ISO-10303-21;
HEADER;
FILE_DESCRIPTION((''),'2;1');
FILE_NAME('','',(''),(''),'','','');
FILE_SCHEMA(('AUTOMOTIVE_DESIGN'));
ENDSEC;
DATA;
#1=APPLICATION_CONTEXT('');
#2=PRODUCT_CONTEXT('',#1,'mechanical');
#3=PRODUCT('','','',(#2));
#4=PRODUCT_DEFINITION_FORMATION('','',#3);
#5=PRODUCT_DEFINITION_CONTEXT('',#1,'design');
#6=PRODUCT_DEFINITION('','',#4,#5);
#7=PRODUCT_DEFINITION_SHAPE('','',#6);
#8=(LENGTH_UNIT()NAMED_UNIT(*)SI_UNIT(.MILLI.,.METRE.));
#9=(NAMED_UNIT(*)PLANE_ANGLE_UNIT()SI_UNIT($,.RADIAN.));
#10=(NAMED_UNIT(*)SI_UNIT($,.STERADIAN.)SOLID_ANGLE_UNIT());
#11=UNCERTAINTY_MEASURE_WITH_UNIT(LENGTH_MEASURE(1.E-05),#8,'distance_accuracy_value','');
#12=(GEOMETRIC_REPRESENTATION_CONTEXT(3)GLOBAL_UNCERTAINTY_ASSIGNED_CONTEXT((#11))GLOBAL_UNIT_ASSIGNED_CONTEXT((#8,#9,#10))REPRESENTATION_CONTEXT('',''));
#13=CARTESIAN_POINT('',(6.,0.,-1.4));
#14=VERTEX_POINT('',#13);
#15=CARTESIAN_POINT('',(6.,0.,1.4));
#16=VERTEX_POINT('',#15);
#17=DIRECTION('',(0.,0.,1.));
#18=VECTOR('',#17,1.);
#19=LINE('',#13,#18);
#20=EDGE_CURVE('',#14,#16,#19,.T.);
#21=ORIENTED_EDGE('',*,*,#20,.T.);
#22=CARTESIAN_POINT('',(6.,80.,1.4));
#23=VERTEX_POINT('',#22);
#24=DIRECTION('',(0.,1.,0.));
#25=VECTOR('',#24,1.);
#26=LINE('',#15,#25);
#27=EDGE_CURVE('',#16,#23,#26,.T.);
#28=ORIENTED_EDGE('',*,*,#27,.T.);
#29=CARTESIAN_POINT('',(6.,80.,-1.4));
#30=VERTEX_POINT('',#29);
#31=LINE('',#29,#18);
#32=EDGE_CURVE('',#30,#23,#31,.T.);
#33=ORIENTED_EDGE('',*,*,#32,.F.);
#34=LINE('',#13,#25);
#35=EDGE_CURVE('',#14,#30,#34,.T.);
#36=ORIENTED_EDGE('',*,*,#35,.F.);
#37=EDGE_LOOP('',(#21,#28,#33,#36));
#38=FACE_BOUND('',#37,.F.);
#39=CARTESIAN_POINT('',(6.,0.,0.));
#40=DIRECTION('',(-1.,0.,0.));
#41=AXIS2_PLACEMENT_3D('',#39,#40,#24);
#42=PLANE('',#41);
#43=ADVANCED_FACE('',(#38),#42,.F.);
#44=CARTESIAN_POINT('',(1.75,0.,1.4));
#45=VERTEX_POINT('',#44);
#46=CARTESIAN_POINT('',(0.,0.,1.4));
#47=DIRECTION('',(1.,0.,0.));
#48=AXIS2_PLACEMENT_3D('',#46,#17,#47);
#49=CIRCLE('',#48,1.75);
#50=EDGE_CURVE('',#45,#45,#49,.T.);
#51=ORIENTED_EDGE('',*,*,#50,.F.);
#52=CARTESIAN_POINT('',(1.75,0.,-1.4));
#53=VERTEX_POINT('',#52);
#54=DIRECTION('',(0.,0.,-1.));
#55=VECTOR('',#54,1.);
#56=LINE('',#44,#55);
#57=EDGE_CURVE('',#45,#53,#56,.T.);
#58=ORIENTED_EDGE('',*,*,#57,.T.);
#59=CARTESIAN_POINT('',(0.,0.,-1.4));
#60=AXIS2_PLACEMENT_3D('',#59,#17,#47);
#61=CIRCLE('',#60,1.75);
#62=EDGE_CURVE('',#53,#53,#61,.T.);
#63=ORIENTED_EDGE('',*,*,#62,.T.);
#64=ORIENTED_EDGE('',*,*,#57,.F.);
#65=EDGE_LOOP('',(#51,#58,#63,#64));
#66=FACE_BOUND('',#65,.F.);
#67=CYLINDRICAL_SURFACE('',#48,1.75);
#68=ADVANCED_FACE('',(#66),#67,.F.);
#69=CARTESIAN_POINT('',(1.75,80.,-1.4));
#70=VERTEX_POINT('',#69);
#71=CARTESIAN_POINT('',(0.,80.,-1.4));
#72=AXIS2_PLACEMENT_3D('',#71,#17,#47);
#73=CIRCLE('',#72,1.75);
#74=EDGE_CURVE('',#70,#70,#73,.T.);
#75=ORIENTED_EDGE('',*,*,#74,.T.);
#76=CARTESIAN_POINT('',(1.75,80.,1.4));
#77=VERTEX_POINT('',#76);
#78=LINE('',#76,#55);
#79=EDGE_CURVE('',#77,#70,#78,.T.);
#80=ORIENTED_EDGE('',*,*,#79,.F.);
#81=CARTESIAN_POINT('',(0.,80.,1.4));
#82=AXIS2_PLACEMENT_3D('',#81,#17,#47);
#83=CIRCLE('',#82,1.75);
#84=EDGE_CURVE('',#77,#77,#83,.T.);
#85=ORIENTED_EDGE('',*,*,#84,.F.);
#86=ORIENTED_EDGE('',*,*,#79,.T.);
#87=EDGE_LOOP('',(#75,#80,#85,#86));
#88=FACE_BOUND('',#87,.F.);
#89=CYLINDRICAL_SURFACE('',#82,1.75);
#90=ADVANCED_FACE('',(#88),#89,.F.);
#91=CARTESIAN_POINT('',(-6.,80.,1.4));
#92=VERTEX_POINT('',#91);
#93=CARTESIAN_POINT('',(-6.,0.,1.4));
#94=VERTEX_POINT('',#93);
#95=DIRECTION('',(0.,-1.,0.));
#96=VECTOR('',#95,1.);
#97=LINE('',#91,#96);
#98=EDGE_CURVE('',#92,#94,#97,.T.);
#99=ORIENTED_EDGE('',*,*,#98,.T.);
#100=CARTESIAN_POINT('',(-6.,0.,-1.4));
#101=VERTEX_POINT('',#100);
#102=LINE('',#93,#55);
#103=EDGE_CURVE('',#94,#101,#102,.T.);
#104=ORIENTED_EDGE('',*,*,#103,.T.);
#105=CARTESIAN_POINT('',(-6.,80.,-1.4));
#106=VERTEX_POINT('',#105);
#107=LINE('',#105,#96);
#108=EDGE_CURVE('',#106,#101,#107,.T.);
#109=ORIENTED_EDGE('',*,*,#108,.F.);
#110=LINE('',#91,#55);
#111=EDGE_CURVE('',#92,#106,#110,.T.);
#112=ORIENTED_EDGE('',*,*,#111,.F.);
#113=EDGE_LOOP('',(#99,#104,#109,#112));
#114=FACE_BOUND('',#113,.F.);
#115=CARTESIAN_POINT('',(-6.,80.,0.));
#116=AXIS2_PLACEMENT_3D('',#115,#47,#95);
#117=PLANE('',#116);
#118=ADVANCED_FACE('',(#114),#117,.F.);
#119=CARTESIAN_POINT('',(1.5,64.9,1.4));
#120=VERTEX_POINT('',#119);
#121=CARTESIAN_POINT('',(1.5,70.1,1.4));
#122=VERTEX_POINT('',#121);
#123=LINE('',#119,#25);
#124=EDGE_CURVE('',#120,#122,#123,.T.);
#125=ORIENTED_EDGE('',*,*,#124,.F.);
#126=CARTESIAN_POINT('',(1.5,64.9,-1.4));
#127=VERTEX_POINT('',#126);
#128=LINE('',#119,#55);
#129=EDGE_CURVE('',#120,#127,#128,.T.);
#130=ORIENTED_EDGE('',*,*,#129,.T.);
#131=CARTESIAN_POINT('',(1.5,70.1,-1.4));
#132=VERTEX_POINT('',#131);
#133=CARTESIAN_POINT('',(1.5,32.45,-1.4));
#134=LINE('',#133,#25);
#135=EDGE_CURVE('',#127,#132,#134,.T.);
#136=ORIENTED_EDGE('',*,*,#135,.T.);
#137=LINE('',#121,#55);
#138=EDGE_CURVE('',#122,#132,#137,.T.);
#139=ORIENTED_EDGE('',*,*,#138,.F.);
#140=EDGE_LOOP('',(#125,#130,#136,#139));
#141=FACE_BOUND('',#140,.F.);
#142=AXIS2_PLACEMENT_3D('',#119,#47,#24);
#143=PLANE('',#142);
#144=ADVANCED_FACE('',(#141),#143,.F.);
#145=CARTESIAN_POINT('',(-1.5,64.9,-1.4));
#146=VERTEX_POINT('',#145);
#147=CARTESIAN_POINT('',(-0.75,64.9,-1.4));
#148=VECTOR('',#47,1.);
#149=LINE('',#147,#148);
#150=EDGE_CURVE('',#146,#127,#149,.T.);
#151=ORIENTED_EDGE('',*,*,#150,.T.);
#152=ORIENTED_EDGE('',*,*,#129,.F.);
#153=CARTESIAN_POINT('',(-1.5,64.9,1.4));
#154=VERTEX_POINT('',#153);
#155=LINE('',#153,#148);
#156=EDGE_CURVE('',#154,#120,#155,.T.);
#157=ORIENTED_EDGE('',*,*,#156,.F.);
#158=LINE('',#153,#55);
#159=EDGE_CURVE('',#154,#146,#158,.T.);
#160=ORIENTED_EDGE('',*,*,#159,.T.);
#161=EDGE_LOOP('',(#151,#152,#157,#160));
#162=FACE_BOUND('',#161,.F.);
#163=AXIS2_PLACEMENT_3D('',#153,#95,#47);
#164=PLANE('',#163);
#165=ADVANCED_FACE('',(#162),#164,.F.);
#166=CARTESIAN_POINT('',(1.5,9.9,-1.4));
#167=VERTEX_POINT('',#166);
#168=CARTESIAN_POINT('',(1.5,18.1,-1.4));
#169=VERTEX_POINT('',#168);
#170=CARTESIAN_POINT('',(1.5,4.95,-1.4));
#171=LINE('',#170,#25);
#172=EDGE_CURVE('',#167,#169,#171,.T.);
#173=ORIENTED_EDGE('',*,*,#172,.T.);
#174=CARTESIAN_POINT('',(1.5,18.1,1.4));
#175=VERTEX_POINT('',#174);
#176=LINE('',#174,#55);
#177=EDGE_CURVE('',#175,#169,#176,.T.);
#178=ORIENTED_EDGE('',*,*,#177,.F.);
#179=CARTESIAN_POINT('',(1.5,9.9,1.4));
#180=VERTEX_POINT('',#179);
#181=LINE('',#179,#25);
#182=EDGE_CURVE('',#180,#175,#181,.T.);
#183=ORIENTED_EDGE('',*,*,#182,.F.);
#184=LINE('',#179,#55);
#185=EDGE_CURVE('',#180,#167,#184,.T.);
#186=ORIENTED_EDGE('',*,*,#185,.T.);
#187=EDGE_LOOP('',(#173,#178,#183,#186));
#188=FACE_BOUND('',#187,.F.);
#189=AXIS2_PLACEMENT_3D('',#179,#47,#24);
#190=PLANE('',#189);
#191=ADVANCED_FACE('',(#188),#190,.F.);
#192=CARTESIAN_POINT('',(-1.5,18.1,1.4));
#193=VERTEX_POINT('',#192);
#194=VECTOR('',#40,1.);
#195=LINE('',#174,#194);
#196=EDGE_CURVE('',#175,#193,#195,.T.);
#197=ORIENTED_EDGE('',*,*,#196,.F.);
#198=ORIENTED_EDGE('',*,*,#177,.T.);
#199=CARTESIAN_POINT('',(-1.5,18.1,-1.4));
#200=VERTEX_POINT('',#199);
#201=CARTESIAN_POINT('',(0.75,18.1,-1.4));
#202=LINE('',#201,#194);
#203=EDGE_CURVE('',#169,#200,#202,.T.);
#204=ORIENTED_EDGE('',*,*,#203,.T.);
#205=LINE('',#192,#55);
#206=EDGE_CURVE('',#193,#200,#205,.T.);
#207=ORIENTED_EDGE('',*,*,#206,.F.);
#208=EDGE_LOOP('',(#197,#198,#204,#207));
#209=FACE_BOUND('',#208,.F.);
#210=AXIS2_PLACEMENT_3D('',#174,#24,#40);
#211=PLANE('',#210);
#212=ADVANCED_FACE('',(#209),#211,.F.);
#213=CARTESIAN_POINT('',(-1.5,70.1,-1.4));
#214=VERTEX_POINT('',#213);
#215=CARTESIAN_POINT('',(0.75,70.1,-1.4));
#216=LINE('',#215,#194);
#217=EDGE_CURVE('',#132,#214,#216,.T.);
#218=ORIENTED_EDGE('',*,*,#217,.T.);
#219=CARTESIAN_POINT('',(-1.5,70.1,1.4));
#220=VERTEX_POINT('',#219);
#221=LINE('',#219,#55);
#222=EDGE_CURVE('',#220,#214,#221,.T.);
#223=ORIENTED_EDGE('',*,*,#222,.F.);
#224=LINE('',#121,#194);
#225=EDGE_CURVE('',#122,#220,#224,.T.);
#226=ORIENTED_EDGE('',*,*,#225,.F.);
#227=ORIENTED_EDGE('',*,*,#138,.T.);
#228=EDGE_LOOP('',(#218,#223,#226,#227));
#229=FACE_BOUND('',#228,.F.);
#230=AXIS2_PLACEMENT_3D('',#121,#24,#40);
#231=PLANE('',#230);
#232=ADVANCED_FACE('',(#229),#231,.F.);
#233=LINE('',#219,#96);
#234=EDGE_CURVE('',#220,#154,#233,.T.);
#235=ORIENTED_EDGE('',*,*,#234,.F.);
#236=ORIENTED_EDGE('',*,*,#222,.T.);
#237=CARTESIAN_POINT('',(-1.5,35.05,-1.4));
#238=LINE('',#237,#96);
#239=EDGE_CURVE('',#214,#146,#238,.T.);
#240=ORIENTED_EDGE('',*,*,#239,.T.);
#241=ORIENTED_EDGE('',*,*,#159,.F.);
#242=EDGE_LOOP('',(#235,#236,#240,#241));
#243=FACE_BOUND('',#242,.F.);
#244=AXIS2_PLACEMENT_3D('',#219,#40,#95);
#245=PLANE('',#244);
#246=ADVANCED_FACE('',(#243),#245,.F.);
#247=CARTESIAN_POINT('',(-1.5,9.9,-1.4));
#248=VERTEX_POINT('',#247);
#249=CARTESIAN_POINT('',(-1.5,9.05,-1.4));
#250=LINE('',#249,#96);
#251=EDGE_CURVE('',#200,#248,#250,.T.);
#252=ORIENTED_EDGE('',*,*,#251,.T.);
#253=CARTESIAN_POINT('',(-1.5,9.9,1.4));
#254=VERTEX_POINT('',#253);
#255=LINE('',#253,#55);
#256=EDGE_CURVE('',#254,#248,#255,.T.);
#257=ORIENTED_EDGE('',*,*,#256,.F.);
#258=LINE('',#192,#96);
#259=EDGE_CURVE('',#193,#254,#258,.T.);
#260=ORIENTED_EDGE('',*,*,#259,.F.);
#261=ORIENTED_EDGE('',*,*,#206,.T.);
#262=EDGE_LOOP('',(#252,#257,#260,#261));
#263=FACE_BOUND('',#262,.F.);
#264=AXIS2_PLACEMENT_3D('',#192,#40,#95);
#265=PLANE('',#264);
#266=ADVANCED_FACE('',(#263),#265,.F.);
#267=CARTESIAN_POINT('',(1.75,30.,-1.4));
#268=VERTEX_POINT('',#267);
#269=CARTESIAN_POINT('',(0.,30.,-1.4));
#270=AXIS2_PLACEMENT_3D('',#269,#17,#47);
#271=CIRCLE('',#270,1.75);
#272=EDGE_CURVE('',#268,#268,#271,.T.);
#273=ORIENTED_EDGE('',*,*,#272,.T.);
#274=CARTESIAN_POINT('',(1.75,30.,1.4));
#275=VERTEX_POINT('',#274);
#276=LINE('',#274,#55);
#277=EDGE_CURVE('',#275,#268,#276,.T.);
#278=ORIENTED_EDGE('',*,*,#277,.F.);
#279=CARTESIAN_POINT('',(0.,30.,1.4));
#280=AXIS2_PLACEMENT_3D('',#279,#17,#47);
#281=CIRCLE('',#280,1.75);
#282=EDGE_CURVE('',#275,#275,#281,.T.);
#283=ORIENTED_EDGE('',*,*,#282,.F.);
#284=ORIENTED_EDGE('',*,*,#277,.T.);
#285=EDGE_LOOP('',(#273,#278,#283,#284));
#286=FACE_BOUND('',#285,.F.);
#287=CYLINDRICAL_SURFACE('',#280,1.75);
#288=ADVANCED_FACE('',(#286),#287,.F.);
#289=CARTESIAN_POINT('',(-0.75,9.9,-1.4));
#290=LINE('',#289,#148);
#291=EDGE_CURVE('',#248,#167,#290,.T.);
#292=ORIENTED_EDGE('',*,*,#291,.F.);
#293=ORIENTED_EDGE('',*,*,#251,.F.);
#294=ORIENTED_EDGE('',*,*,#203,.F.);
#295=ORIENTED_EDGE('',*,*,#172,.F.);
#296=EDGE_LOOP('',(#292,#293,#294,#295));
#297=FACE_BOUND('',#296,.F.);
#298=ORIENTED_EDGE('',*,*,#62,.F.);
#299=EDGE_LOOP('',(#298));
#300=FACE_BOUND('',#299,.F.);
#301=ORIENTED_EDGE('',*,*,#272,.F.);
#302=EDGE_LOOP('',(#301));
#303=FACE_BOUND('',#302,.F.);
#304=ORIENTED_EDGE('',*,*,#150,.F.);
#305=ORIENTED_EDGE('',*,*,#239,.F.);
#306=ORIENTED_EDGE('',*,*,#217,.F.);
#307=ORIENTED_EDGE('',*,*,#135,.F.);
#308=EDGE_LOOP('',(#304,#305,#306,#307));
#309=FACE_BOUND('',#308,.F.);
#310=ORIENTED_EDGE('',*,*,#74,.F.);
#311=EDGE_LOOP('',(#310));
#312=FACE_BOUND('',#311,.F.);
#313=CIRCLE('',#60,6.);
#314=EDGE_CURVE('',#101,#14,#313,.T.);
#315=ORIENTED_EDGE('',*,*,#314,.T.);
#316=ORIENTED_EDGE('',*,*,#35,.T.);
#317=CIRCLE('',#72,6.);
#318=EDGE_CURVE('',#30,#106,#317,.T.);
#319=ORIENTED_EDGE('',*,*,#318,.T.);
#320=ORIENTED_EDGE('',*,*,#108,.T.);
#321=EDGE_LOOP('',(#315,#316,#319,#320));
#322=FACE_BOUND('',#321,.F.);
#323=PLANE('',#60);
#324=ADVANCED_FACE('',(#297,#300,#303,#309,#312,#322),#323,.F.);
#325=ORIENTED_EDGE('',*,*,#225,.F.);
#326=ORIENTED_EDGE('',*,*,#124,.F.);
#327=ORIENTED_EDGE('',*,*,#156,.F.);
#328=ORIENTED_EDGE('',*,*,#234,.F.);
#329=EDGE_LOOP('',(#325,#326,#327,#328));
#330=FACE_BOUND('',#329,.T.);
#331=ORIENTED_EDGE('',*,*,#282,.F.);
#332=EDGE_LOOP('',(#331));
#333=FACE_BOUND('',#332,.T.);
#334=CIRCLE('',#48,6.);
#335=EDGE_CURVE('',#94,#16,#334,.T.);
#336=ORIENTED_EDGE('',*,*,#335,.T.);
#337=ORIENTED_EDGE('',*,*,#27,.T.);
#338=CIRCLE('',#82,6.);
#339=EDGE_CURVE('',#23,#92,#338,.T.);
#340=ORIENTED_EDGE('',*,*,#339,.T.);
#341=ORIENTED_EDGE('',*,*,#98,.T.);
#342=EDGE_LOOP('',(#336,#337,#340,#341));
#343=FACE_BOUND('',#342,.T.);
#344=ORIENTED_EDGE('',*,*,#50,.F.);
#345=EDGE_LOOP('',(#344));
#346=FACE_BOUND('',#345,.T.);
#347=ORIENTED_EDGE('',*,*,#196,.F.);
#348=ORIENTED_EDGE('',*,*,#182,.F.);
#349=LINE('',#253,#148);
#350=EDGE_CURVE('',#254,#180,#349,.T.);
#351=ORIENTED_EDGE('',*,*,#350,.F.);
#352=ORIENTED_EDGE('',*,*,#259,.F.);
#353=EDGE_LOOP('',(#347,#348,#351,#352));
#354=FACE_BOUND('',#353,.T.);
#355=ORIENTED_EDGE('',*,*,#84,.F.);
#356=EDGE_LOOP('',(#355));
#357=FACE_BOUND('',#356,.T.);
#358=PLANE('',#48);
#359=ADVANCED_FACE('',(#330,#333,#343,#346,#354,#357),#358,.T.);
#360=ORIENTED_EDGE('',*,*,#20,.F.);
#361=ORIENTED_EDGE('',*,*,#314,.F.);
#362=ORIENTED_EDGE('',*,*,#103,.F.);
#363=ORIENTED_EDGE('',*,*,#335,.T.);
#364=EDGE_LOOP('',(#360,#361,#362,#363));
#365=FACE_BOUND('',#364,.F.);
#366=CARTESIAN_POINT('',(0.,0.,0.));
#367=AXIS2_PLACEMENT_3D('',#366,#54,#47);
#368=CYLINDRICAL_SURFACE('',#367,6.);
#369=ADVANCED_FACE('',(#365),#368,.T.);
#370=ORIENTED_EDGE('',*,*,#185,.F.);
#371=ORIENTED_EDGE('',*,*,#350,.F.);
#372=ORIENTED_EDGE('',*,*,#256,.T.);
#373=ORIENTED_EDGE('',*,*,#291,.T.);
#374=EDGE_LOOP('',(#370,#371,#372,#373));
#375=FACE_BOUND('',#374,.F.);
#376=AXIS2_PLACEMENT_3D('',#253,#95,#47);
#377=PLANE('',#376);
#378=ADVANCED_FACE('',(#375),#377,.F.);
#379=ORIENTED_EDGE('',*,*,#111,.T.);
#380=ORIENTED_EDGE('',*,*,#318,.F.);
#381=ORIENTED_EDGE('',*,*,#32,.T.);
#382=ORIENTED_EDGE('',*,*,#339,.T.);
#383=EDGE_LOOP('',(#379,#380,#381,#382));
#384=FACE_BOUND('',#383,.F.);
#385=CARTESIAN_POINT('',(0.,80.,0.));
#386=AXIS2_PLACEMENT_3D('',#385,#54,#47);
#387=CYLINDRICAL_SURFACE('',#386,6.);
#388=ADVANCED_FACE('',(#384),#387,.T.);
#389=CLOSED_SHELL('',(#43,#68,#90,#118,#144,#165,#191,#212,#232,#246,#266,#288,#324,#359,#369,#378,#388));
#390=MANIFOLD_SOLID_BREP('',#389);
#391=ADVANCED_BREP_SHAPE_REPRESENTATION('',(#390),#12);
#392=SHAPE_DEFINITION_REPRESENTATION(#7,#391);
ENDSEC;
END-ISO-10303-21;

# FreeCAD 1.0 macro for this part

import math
import FreeCAD as App
import Part
import Sketcher

V = App.Vector

doc = App.newDocument("Part")
body = doc.addObject("PartDesign::Body", "Body")

# Sketch on XY plane
sketch1 = doc.addObject("Sketcher::SketchObject", "Sketch")
body.addObject(sketch1)
sketch1.AttachmentSupport = (doc.XY_Plane, [""])
sketch1.MapMode = "FlatFace"
sketch1.addGeometry(Part.ArcOfCircle(Part.Circle(V(0, 0, 0), V(0, 0, 1), 6), math.radians(180), math.radians(360)), False)
sketch1.addGeometry(Part.LineSegment(V(6, 0, 0), V(6, 80, 0)), False)
sketch1.addGeometry(Part.ArcOfCircle(Part.Circle(V(0, 80, 0), V(0, 0, 1), 6), math.radians(0), math.radians(180)), False)
sketch1.addGeometry(Part.LineSegment(V(-6, 80, 0), V(-6, 0, 0)), False)
sketch1.addConstraint(Sketcher.Constraint("Tangent", 0, 2, 1, 1))
sketch1.addConstraint(Sketcher.Constraint("Tangent", 1, 2, 2, 1))
sketch1.addConstraint(Sketcher.Constraint("Tangent", 2, 2, 3, 1))
sketch1.addConstraint(Sketcher.Constraint("Tangent", 3, 2, 0, 1))
sketch1.addConstraint(Sketcher.Constraint("Vertical", 1))
sketch1.addConstraint(Sketcher.Constraint("Vertical", 3))
sketch1.addConstraint(Sketcher.Constraint("Coincident", 0, 3, -1, 1))
sketch1.addConstraint(Sketcher.Constraint("Radius", 0, 6.0))
sketch1.addConstraint(Sketcher.Constraint("DistanceY", 1, 1, 1, 2, 80.0))
pad1 = doc.addObject("PartDesign::Pad", "Pad")
body.addObject(pad1)
pad1.Profile = sketch1
pad1.Length = 2.8
pad1.Midplane = True

# Sketch on XY plane
sketch2 = doc.addObject("Sketcher::SketchObject", "Sketch001")
body.addObject(sketch2)
sketch2.AttachmentSupport = (doc.XY_Plane, [""])
sketch2.MapMode = "FlatFace"
sketch2.AttachmentOffset = App.Placement(V(0, 0, 1.4), App.Rotation())
sketch2.addGeometry(Part.Circle(V(0, 0, 0), V(0, 0, 1), 1.8), False)
sketch2.addGeometry(Part.Circle(V(0, 80, 0), V(0, 0, 1), 1.8), False)
sketch2.addGeometry(Part.LineSegment(V(-1.5, 70.1, 0), V(-1.5, 64.9, 0)), False)
sketch2.addGeometry(Part.LineSegment(V(-1.5, 64.9, 0), V(1.5, 64.9, 0)), False)
sketch2.addGeometry(Part.LineSegment(V(1.5, 64.9, 0), V(1.5, 70.1, 0)), False)
sketch2.addGeometry(Part.LineSegment(V(1.5, 70.1, 0), V(-1.5, 70.1, 0)), False)
sketch2.addGeometry(Part.Circle(V(0, 30, 0), V(0, 0, 1), 1.8), False)
sketch2.addGeometry(Part.LineSegment(V(-1.5, 18.1, 0), V(-1.5, 9.9, 0)), False)
sketch2.addGeometry(Part.LineSegment(V(-1.5, 9.9, 0), V(1.5, 9.9, 0)), False)
sketch2.addGeometry(Part.LineSegment(V(1.5, 9.9, 0), V(1.5, 18.1, 0)), False)
sketch2.addGeometry(Part.LineSegment(V(1.5, 18.1, 0), V(-1.5, 18.1, 0)), False)
sketch2.addConstraint(Sketcher.Constraint("Coincident", 2, 2, 3, 1))
sketch2.addConstraint(Sketcher.Constraint("Coincident", 3, 2, 4, 1))
sketch2.addConstraint(Sketcher.Constraint("Coincident", 4, 2, 5, 1))
sketch2.addConstraint(Sketcher.Constraint("Coincident", 5, 2, 2, 1))
sketch2.addConstraint(Sketcher.Constraint("Coincident", 7, 2, 8, 1))
sketch2.addConstraint(Sketcher.Constraint("Coincident", 8, 2, 9, 1))
sketch2.addConstraint(Sketcher.Constraint("Coincident", 9, 2, 10, 1))
sketch2.addConstraint(Sketcher.Constraint("Coincident", 10, 2, 7, 1))
sketch2.addConstraint(Sketcher.Constraint("Vertical", 2))
sketch2.addConstraint(Sketcher.Constraint("Horizontal", 3))
sketch2.addConstraint(Sketcher.Constraint("Vertical", 4))
sketch2.addConstraint(Sketcher.Constraint("Horizontal", 5))
sketch2.addConstraint(Sketcher.Constraint("Vertical", 7))
sketch2.addConstraint(Sketcher.Constraint("Horizontal", 8))
sketch2.addConstraint(Sketcher.Constraint("Vertical", 9))
sketch2.addConstraint(Sketcher.Constraint("Horizontal", 10))
sketch2.addConstraint(Sketcher.Constraint("Coincident", 0, 3, -1, 1))
sketch2.addConstraint(Sketcher.Constraint("Equal", 0, 1))
sketch2.addConstraint(Sketcher.Constraint("Equal", 1, 6))
sketch2.addConstraint(Sketcher.Constraint("PointOnObject", 1, 3, -2))
sketch2.addConstraint(Sketcher.Constraint("PointOnObject", 6, 3, -2))
sketch2.addConstraint(Sketcher.Constraint("Vertical", 5, 2, 7, 2))
sketch2.addConstraint(Sketcher.Constraint("Vertical", 4, 2, 8, 2))
sketch2.addConstraint(Sketcher.Constraint("Diameter", 0, 3.5))
sketch2.addConstraint(Sketcher.Constraint("DistanceX", 3, 1, 3, 2, 3.0))
sketch2.addConstraint(Sketcher.Constraint("DistanceY", 2, 2, 2, 1, 5.2))
sketch2.addConstraint(Sketcher.Constraint("DistanceY", 7, 2, 7, 1, 8.2))
sketch2.addConstraint(Sketcher.Constraint("DistanceY", -1, 1, 6, 3, 30.0))
sketch2.addConstraint(Sketcher.Constraint("DistanceY", -1, 1, 1, 3, 80.0))
sketch2.addConstraint(Sketcher.Constraint("DistanceY", 7, 2, 2, 2, 55.0))
sketch2.addConstraint(Sketcher.Constraint("DistanceX", 2, 2, -1, 1, 1.5))
sketch2.addConstraint(Sketcher.Constraint("DistanceY", -1, 1, 2, 2, 64.9))
pocket1 = doc.addObject("PartDesign::Pocket", "Pocket")
body.addObject(pocket1)
pocket1.Profile = sketch2
pocket1.Type = "ThroughAll"

doc.recompute()
